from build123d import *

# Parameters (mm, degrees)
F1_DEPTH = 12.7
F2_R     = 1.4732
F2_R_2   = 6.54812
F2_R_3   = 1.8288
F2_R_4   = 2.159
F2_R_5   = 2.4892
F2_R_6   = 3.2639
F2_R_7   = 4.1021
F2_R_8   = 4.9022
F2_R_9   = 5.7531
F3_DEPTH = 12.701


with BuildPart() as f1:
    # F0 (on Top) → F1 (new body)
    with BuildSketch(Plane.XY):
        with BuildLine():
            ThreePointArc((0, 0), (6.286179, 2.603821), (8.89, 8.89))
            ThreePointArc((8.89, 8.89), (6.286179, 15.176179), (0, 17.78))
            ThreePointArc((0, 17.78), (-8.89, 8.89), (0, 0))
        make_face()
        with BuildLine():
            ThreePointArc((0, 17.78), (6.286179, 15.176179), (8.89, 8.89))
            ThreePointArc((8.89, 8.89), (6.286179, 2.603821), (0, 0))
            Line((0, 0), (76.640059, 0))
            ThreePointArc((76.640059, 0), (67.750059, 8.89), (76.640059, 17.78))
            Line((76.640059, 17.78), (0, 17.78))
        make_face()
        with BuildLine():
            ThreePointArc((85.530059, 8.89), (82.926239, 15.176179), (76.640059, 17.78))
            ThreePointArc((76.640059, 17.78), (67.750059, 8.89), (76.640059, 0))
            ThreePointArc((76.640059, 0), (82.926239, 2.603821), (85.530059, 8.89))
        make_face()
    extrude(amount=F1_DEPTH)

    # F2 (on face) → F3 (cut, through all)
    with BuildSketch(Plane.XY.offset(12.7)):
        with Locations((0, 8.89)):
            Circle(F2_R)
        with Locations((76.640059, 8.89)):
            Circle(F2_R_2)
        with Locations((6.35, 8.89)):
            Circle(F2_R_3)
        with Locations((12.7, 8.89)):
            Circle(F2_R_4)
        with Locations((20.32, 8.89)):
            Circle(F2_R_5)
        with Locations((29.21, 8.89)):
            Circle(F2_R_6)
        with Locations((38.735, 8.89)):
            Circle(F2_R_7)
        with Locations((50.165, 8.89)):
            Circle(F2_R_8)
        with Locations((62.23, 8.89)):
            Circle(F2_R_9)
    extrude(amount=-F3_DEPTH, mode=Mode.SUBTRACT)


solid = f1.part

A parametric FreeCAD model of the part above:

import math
import FreeCAD as App
import Part
import Sketcher

V = App.Vector
Q = App.Units.Quantity

doc = App.newDocument("Part")
params = doc.addObject("Spreadsheet::Sheet", "Params")
for row, (alias, value) in enumerate([
    ("sketch1_radius", "0.35 in"),
    ("pad1_length", "0.5 in"),
    ("sketch2_diameter", "0.17 in"),
    ("sketch2_diameter2", "0.116 in"),
    ("sketch2_diameter3", "0.144 in"),
    ("sketch2_diameter4", "0.196 in"),
    ("sketch2_diameter5", "0.257 in"),
], start=1):
    params.set(f"A{row}", alias)
    params.set(f"B{row}", "=" + value)
    params.setAlias(f"B{row}", alias)

body = doc.addObject("PartDesign::Body", "Body")

# Sketch on XY plane
sketch1 = body.newObject("Sketcher::SketchObject", "Sketch")
sketch1.AttachmentSupport = (doc.getObject("XY_Plane"), [""])
sketch1.MapMode = "FlatFace"
sketch1.addGeometry([
    Part.ArcOfCircle(Part.Circle(V(0, 9, 0), V(0, 0, 1), 9), math.radians(90), math.radians(270)),  # 0
    Part.LineSegment(V(0, 0, 0), V(77, 0, 0)),  # 1
    Part.ArcOfCircle(Part.Circle(V(77, 9, 0), V(0, 0, 1), 9), math.radians(-90), math.radians(0)),  # 2
    Part.ArcOfCircle(Part.Circle(V(77, 9, 0), V(0, 0, 1), 9), math.radians(0), math.radians(90)),  # 3
    Part.LineSegment(V(77, 18, 0), V(0, 18, 0)),  # 4
], False)
sketch1.addConstraint([
    Sketcher.Constraint("Tangent", 0, 2, 1, 1),
    Sketcher.Constraint("Tangent", 1, 2, 2, 1),
    Sketcher.Constraint("Tangent", 2, 2, 3, 1),
    Sketcher.Constraint("Tangent", 3, 2, 4, 1),
    Sketcher.Constraint("Tangent", 4, 2, 0, 1),
    Sketcher.Constraint("Horizontal", 1),
    Sketcher.Constraint("Horizontal", 4),
    Sketcher.Constraint("Coincident", 0, 2, -1, 1),
    Sketcher.Constraint("Equal", 0, 2),
    Sketcher.Constraint("Horizontal", 3, 3, 2, 2),
    Sketcher.Constraint("Radius", 0, Q("0.35 in")),
    Sketcher.Constraint("DistanceX", 1, 1, 1, 2, 76.640059),
])
sketch1.setExpression("Constraints[10]", "Params.sketch1_radius")
pad1 = body.newObject("PartDesign::Pad", "Pad")
pad1.Profile = sketch1
pad1.setExpression("Length", "Params.pad1_length")

# Sketch on XY plane
sketch2 = body.newObject("Sketcher::SketchObject", "Sketch001")
sketch2.AttachmentSupport = (doc.getObject("XY_Plane"), [""])
sketch2.MapMode = "FlatFace"
sketch2.AttachmentOffset = App.Placement(V(0, 0, 0.5 * 25.4), App.Rotation())
sketch2.addGeometry([
    Part.Circle(V(0, 8.9, 0), V(0, 0, 1), 1.5),  # 0
    Part.Circle(V(76.6, 8.9, 0), V(0, 0, 1), 6.5),  # 1
    Part.Circle(V(6.3, 8.9, 0), V(0, 0, 1), 1.8),  # 2
    Part.Circle(V(12.7, 8.9, 0), V(0, 0, 1), 2.2),  # 3
    Part.Circle(V(20.3, 8.9, 0), V(0, 0, 1), 2.5),  # 4
    Part.Circle(V(29.2, 8.9, 0), V(0, 0, 1), 3.3),  # 5
    Part.Circle(V(38.7, 8.9, 0), V(0, 0, 1), 4.1),  # 6
    Part.Circle(V(50.2, 8.9, 0), V(0, 0, 1), 4.9),  # 7
    Part.Circle(V(62.2, 8.9, 0), V(0, 0, 1), 5.8),  # 8
], False)
sketch2.addConstraint([
    Sketcher.Constraint("PointOnObject", 0, 3, -2),
    Sketcher.Constraint("Horizontal", 0, 3, 1, 3),
    Sketcher.Constraint("Horizontal", 1, 3, 2, 3),
    Sketcher.Constraint("Horizontal", 2, 3, 3, 3),
    Sketcher.Constraint("Horizontal", 3, 3, 4, 3),
    Sketcher.Constraint("Horizontal", 4, 3, 5, 3),
    Sketcher.Constraint("Horizontal", 5, 3, 6, 3),
    Sketcher.Constraint("Horizontal", 6, 3, 7, 3),
    Sketcher.Constraint("Horizontal", 7, 3, 8, 3),
    Sketcher.Constraint("Diameter", 3, Q("0.17 in")),
    Sketcher.Constraint("Diameter", 0, Q("0.116 in")),
    Sketcher.Constraint("Diameter", 2, Q("0.144 in")),
    Sketcher.Constraint("Diameter", 4, Q("0.196 in")),
    Sketcher.Constraint("Diameter", 5, Q("0.257 in")),
    Sketcher.Constraint("Diameter", 6, Q("0.323 in")),
    Sketcher.Constraint("Diameter", 7, Q("0.386 in")),
    Sketcher.Constraint("Diameter", 8, Q("0.453 in")),
    Sketcher.Constraint("Diameter", 1, Q("0.5156 in")),
    Sketcher.Constraint("DistanceX", -1, 1, 3, 3, Q("0.5 in")),
    Sketcher.Constraint("DistanceX", -1, 1, 4, 3, Q("0.8 in")),
    Sketcher.Constraint("DistanceX", 2, 3, 5, 3, Q("0.9 in")),
    Sketcher.Constraint("DistanceX", 5, 3, 8, 3, Q("1.3 in")),
    Sketcher.Constraint("DistanceY", -1, 1, 0, 3, Q("0.35 in")),
    Sketcher.Constraint("DistanceX", -1, 1, 2, 3, Q("0.25 in")),
    Sketcher.Constraint("DistanceX", 6, 3, 7, 3, Q("0.45 in")),
    Sketcher.Constraint("DistanceX", -1, 1, 6, 3, Q("1.525 in")),
    Sketcher.Constraint("DistanceX", -1, 1, 1, 3, 76.640059),
])
sketch2.setExpression("Constraints[9]", "Params.sketch2_diameter")
sketch2.setExpression("Constraints[10]", "Params.sketch2_diameter2")
sketch2.setExpression("Constraints[11]", "Params.sketch2_diameter3")
sketch2.setExpression("Constraints[12]", "Params.sketch2_diameter4")
sketch2.setExpression("Constraints[13]", "Params.sketch2_diameter5")
pocket1 = body.newObject("PartDesign::Pocket", "Pocket")
pocket1.Profile = sketch2
pocket1.Type = "ThroughAll"

doc.recompute()
